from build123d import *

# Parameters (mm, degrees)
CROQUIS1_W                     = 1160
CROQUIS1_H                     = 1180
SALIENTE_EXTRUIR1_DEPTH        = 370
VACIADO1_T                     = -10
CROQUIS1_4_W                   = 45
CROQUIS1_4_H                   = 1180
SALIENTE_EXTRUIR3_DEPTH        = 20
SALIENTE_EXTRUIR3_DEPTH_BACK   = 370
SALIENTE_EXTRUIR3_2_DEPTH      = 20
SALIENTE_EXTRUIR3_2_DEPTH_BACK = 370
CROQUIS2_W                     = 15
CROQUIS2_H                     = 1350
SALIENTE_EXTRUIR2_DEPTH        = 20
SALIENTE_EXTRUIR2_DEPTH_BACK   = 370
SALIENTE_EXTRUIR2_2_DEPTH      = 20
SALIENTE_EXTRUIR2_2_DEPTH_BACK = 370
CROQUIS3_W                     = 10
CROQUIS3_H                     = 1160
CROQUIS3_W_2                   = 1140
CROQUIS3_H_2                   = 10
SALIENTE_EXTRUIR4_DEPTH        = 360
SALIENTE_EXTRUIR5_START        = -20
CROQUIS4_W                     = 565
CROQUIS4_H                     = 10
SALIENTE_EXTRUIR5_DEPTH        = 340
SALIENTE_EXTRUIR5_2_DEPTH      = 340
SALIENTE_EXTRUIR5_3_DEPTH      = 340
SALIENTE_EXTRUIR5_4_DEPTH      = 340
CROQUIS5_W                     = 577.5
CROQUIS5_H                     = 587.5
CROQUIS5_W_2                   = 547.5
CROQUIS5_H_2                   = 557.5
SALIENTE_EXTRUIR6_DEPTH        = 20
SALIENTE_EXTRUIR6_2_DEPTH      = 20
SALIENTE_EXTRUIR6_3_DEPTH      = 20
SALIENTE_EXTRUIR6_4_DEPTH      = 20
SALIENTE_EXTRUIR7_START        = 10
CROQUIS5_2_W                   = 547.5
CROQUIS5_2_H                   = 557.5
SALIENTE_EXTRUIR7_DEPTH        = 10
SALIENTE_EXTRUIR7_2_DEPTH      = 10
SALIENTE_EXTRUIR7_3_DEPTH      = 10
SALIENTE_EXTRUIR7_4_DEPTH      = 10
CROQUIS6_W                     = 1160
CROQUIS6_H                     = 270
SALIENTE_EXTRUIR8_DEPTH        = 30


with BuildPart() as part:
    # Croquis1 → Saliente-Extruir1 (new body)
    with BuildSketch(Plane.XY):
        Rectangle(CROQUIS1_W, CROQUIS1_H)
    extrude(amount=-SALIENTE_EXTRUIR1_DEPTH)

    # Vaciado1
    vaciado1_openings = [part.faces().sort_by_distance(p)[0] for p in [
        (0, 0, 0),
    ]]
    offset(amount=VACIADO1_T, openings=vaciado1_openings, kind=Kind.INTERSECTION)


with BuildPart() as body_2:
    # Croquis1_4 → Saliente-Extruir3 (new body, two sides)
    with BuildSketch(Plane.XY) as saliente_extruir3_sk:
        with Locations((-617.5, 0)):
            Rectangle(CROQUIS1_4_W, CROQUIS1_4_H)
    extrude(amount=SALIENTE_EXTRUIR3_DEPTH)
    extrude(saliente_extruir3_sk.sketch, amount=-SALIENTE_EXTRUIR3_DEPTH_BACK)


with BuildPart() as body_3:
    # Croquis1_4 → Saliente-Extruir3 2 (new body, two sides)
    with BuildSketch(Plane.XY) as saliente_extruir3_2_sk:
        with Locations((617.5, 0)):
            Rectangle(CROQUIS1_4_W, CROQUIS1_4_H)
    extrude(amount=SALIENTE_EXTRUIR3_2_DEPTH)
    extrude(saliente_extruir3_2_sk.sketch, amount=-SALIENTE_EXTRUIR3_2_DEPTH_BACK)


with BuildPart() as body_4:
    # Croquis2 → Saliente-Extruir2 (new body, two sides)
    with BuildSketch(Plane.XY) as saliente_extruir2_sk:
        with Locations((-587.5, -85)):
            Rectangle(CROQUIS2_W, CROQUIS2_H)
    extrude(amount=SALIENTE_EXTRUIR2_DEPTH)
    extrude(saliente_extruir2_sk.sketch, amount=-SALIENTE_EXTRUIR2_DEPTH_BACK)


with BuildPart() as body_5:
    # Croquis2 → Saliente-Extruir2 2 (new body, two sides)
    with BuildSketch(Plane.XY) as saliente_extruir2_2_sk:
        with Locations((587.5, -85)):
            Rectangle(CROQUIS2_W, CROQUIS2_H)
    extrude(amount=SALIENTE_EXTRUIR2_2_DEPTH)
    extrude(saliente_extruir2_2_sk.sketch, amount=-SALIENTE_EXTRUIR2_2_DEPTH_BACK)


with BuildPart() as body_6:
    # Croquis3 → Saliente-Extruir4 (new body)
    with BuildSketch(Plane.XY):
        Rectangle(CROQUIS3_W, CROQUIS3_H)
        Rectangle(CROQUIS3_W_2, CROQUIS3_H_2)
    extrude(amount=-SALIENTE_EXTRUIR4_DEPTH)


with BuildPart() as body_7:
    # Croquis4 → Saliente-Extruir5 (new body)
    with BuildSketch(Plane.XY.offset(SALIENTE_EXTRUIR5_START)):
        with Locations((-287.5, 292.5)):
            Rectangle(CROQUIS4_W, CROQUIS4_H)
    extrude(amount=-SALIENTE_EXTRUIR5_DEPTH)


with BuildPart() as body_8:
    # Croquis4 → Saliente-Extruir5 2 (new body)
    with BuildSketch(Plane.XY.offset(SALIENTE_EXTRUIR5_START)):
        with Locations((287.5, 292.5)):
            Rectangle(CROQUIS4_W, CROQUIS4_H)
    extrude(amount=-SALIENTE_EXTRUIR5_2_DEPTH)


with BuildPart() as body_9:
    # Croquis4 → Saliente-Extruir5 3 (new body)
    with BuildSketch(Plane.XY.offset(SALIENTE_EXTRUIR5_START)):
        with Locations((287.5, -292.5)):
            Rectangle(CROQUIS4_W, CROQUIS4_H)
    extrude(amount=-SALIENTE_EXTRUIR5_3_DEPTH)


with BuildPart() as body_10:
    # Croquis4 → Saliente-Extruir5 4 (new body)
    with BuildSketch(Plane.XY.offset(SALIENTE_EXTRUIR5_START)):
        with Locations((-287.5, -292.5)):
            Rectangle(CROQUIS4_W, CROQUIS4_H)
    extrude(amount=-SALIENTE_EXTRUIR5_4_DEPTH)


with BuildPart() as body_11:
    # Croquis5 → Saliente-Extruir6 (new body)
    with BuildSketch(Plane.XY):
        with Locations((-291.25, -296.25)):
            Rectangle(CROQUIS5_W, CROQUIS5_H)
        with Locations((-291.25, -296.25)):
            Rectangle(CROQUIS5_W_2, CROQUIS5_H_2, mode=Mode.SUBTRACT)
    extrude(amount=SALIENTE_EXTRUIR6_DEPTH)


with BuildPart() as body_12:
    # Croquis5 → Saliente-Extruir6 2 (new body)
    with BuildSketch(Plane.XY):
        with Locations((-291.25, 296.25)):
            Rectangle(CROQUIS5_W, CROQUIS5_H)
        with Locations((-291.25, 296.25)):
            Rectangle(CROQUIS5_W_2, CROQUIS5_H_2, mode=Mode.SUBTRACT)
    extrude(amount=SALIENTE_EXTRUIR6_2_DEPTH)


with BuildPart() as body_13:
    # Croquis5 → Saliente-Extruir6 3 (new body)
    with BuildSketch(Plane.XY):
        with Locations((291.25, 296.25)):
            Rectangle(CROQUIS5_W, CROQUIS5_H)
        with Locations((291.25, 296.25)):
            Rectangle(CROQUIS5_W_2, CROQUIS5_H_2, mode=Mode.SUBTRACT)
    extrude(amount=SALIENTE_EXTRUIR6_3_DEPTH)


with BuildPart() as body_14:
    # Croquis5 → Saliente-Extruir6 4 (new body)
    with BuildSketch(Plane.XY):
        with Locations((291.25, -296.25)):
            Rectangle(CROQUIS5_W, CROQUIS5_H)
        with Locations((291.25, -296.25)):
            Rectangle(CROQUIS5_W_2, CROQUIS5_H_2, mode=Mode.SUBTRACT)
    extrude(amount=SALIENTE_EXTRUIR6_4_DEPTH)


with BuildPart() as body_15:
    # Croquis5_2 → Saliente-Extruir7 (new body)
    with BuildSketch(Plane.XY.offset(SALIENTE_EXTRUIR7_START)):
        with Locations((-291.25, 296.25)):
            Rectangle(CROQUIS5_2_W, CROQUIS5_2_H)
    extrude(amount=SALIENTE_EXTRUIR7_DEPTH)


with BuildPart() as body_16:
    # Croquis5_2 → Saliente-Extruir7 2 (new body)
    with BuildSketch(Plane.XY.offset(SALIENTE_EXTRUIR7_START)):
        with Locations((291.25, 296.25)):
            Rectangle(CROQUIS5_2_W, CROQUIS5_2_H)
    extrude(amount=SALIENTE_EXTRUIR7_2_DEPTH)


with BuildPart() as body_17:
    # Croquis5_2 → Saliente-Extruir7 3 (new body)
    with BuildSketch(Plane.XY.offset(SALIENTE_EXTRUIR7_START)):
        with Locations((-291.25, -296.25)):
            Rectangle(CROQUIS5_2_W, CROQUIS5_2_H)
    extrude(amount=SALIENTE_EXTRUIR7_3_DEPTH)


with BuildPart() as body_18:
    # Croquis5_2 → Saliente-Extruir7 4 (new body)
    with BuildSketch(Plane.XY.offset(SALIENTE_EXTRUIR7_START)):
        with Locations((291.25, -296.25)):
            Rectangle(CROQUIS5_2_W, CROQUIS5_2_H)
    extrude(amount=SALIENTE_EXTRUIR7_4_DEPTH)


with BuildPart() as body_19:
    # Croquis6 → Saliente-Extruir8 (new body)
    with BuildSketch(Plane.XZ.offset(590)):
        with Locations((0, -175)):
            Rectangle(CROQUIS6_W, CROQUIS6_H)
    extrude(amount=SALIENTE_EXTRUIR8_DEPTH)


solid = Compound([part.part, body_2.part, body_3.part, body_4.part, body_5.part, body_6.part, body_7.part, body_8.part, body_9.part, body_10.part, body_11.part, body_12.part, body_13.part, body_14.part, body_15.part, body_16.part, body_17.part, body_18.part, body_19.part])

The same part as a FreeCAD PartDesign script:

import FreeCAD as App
import Part
import Sketcher

V = App.Vector


def faces_at(feature, points):
    """Names of the faces that lie closest to the given points."""
    faces = feature.Shape.Faces
    near = lambda p: min(range(len(faces)), key=lambda i: faces[i].distToShape(Part.Vertex(*p))[0])
    return sorted({f"Face{near(p) + 1}" for p in points})

doc = App.newDocument("Part")
body = doc.addObject("PartDesign::Body", "Body")

# Sketch on XY plane
sketch1 = doc.addObject("Sketcher::SketchObject", "Sketch")
body.addObject(sketch1)
sketch1.AttachmentSupport = (doc.XY_Plane, [""])
sketch1.MapMode = "FlatFace"
sketch1.addGeometry([
    Part.LineSegment(V(-580, 590, 0), V(-580, -590, 0)),
    Part.LineSegment(V(-580, -590, 0), V(580, -590, 0)),
    Part.LineSegment(V(580, -590, 0), V(580, 590, 0)),
    Part.LineSegment(V(580, 590, 0), V(-580, 590, 0)),
], False)
sketch1.addConstraint([
    Sketcher.Constraint("Coincident", 0, 2, 1, 1),
    Sketcher.Constraint("Coincident", 1, 2, 2, 1),
    Sketcher.Constraint("Coincident", 2, 2, 3, 1),
    Sketcher.Constraint("Coincident", 3, 2, 0, 1),
    Sketcher.Constraint("Vertical", 0),
    Sketcher.Constraint("Horizontal", 1),
    Sketcher.Constraint("Vertical", 2),
    Sketcher.Constraint("Horizontal", 3),
    Sketcher.Constraint("Symmetric", 0, 2, 2, 2, -1, 1),
    Sketcher.Constraint("DistanceX", 1, 1, 1, 2, 1160.0),
    Sketcher.Constraint("DistanceY", 0, 2, 0, 1, 1180.0),
])
pad1 = doc.addObject("PartDesign::Pad", "Pad")
body.addObject(pad1)
pad1.Profile = sketch1
pad1.Length = 370
pad1.Reversed = True
doc.recompute()

thickness = doc.addObject("PartDesign::Thickness", "Thickness")
body.addObject(thickness)
thickness.Base = (pad1, faces_at(pad1, [(0, 0, 0)]))
thickness.Value = 10
thickness.Reversed = True
thickness.Join = "Intersection"
body2 = doc.addObject("PartDesign::Body", "Body001")

# Sketch on XY plane
sketch2 = doc.addObject("Sketcher::SketchObject", "Sketch001")
body2.addObject(sketch2)
sketch2.AttachmentSupport = (doc.getObject("XY_Plane001"), [""])
sketch2.MapMode = "FlatFace"
sketch2.addGeometry([
    Part.LineSegment(V(-640, 590, 0), V(-640, -590, 0)),
    Part.LineSegment(V(-640, -590, 0), V(-595, -590, 0)),
    Part.LineSegment(V(-595, -590, 0), V(-595, 590, 0)),
    Part.LineSegment(V(-595, 590, 0), V(-640, 590, 0)),
], False)
sketch2.addConstraint([
    Sketcher.Constraint("Coincident", 0, 2, 1, 1),
    Sketcher.Constraint("Coincident", 1, 2, 2, 1),
    Sketcher.Constraint("Coincident", 2, 2, 3, 1),
    Sketcher.Constraint("Coincident", 3, 2, 0, 1),
    Sketcher.Constraint("Vertical", 0),
    Sketcher.Constraint("Horizontal", 1),
    Sketcher.Constraint("Vertical", 2),
    Sketcher.Constraint("Horizontal", 3),
    Sketcher.Constraint("DistanceX", 1, 1, 1, 2, 45.0),
    Sketcher.Constraint("DistanceY", 0, 2, 0, 1, 1180.0),
    Sketcher.Constraint("DistanceX", 0, 2, -1, 1, 640.0),
    Sketcher.Constraint("DistanceY", 0, 2, -1, 1, 590.0),
])
pad2 = doc.addObject("PartDesign::Pad", "Pad001")
body2.addObject(pad2)
pad2.Profile = sketch2
pad2.Type = "TwoLengths"
pad2.Length = 20
pad2.Length2 = 370
body3 = doc.addObject("PartDesign::Body", "Body002")

# Sketch on XY plane
sketch3 = doc.addObject("Sketcher::SketchObject", "Sketch002")
body3.addObject(sketch3)
sketch3.AttachmentSupport = (doc.getObject("XY_Plane002"), [""])
sketch3.MapMode = "FlatFace"
sketch3.addGeometry([
    Part.LineSegment(V(595, 590, 0), V(595, -590, 0)),
    Part.LineSegment(V(595, -590, 0), V(640, -590, 0)),
    Part.LineSegment(V(640, -590, 0), V(640, 590, 0)),
    Part.LineSegment(V(640, 590, 0), V(595, 590, 0)),
], False)
sketch3.addConstraint([
    Sketcher.Constraint("Coincident", 0, 2, 1, 1),
    Sketcher.Constraint("Coincident", 1, 2, 2, 1),
    Sketcher.Constraint("Coincident", 2, 2, 3, 1),
    Sketcher.Constraint("Coincident", 3, 2, 0, 1),
    Sketcher.Constraint("Vertical", 0),
    Sketcher.Constraint("Horizontal", 1),
    Sketcher.Constraint("Vertical", 2),
    Sketcher.Constraint("Horizontal", 3),
    Sketcher.Constraint("DistanceX", 1, 1, 1, 2, 45.0),
    Sketcher.Constraint("DistanceY", 0, 2, 0, 1, 1180.0),
    Sketcher.Constraint("DistanceX", -1, 1, 0, 2, 595.0),
    Sketcher.Constraint("DistanceY", 0, 2, -1, 1, 590.0),
])
pad3 = doc.addObject("PartDesign::Pad", "Pad002")
body3.addObject(pad3)
pad3.Profile = sketch3
pad3.Type = "TwoLengths"
pad3.Length = 20
pad3.Length2 = 370
body4 = doc.addObject("PartDesign::Body", "Body003")

# Sketch on XY plane
sketch4 = doc.addObject("Sketcher::SketchObject", "Sketch003")
body4.addObject(sketch4)
sketch4.AttachmentSupport = (doc.getObject("XY_Plane003"), [""])
sketch4.MapMode = "FlatFace"
sketch4.addGeometry([
    Part.LineSegment(V(-595, 590, 0), V(-595, -760, 0)),
    Part.LineSegment(V(-595, -760, 0), V(-580, -760, 0)),
    Part.LineSegment(V(-580, -760, 0), V(-580, 590, 0)),
    Part.LineSegment(V(-580, 590, 0), V(-595, 590, 0)),
], False)
sketch4.addConstraint([
    Sketcher.Constraint("Coincident", 0, 2, 1, 1),
    Sketcher.Constraint("Coincident", 1, 2, 2, 1),
    Sketcher.Constraint("Coincident", 2, 2, 3, 1),
    Sketcher.Constraint("Coincident", 3, 2, 0, 1),
    Sketcher.Constraint("Vertical", 0),
    Sketcher.Constraint("Horizontal", 1),
    Sketcher.Constraint("Vertical", 2),
    Sketcher.Constraint("Horizontal", 3),
    Sketcher.Constraint("DistanceX", 1, 1, 1, 2, 15.0),
    Sketcher.Constraint("DistanceY", 0, 2, 0, 1, 1350.0),
    Sketcher.Constraint("DistanceX", 0, 2, -1, 1, 595.0),
    Sketcher.Constraint("DistanceY", 0, 2, -1, 1, 760.0),
])
pad4 = doc.addObject("PartDesign::Pad", "Pad003")
body4.addObject(pad4)
pad4.Profile = sketch4
pad4.Type = "TwoLengths"
pad4.Length = 20
pad4.Length2 = 370
body5 = doc.addObject("PartDesign::Body", "Body004")

# Sketch on XY plane
sketch5 = doc.addObject("Sketcher::SketchObject", "Sketch004")
body5.addObject(sketch5)
sketch5.AttachmentSupport = (doc.getObject("XY_Plane004"), [""])
sketch5.MapMode = "FlatFace"
sketch5.addGeometry([
    Part.LineSegment(V(580, 590, 0), V(580, -760, 0)),
    Part.LineSegment(V(580, -760, 0), V(595, -760, 0)),
    Part.LineSegment(V(595, -760, 0), V(595, 590, 0)),
    Part.LineSegment(V(595, 590, 0), V(580, 590, 0)),
], False)
sketch5.addConstraint([
    Sketcher.Constraint("Coincident", 0, 2, 1, 1),
    Sketcher.Constraint("Coincident", 1, 2, 2, 1),
    Sketcher.Constraint("Coincident", 2, 2, 3, 1),
    Sketcher.Constraint("Coincident", 3, 2, 0, 1),
    Sketcher.Constraint("Vertical", 0),
    Sketcher.Constraint("Horizontal", 1),
    Sketcher.Constraint("Vertical", 2),
    Sketcher.Constraint("Horizontal", 3),
    Sketcher.Constraint("DistanceX", 1, 1, 1, 2, 15.0),
    Sketcher.Constraint("DistanceY", 0, 2, 0, 1, 1350.0),
    Sketcher.Constraint("DistanceX", -1, 1, 0, 2, 580.0),
    Sketcher.Constraint("DistanceY", 0, 2, -1, 1, 760.0),
])
pad5 = doc.addObject("PartDesign::Pad", "Pad004")
body5.addObject(pad5)
pad5.Profile = sketch5
pad5.Type = "TwoLengths"
pad5.Length = 20
pad5.Length2 = 370
body6 = doc.addObject("PartDesign::Body", "Body005")

# Sketch on XY plane
sketch6 = doc.addObject("Sketcher::SketchObject", "Sketch005")
body6.addObject(sketch6)
sketch6.AttachmentSupport = (doc.getObject("XY_Plane005"), [""])
sketch6.MapMode = "FlatFace"
sketch6.addGeometry([
    Part.LineSegment(V(-5, -5, 0), V(-5, -580, 0)),  # 0
    Part.LineSegment(V(-5, -580, 0), V(5, -580, 0)),  # 1
    Part.LineSegment(V(5, -580, 0), V(5, -5, 0)),  # 2
    Part.LineSegment(V(5, -5, 0), V(570, -5, 0)),  # 3
    Part.LineSegment(V(570, -5, 0), V(570, 5, 0)),  # 4
    Part.LineSegment(V(570, 5, 0), V(5, 5, 0)),  # 5
    Part.LineSegment(V(5, 5, 0), V(5, 580, 0)),  # 6
    Part.LineSegment(V(5, 580, 0), V(-5, 580, 0)),  # 7
    Part.LineSegment(V(-5, 580, 0), V(-5, 5, 0)),  # 8
    Part.LineSegment(V(-5, 5, 0), V(-570, 5, 0)),  # 9
    Part.LineSegment(V(-570, 5, 0), V(-570, -5, 0)),  # 10
    Part.LineSegment(V(-570, -5, 0), V(-5, -5, 0)),  # 11
], False)
sketch6.addConstraint([
    Sketcher.Constraint("Coincident", 0, 2, 1, 1),
    Sketcher.Constraint("Coincident", 1, 2, 2, 1),
    Sketcher.Constraint("Coincident", 2, 2, 3, 1),
    Sketcher.Constraint("Coincident", 3, 2, 4, 1),
    Sketcher.Constraint("Coincident", 4, 2, 5, 1),
    Sketcher.Constraint("Coincident", 5, 2, 6, 1),
    Sketcher.Constraint("Coincident", 6, 2, 7, 1),
    Sketcher.Constraint("Coincident", 7, 2, 8, 1),
    Sketcher.Constraint("Coincident", 8, 2, 9, 1),
    Sketcher.Constraint("Coincident", 9, 2, 10, 1),
    Sketcher.Constraint("Coincident", 10, 2, 11, 1),
    Sketcher.Constraint("Coincident", 11, 2, 0, 1),
    Sketcher.Constraint("Vertical", 0),
    Sketcher.Constraint("Horizontal", 1),
    Sketcher.Constraint("Vertical", 2),
    Sketcher.Constraint("Horizontal", 3),
    Sketcher.Constraint("Vertical", 4),
    Sketcher.Constraint("Horizontal", 5),
    Sketcher.Constraint("Vertical", 6),
    Sketcher.Constraint("Horizontal", 7),
    Sketcher.Constraint("Vertical", 8),
    Sketcher.Constraint("Horizontal", 9),
    Sketcher.Constraint("Vertical", 10),
    Sketcher.Constraint("Horizontal", 11),
    Sketcher.Constraint("Symmetric", 0, 2, 6, 2, -1, 1),
    Sketcher.Constraint("Symmetric", 2, 2, 8, 2, -1, 1),
    Sketcher.Constraint("Symmetric", 4, 2, 10, 2, -1, 1),
    Sketcher.Constraint("Symmetric", 5, 2, 8, 2, -2),
    Sketcher.Constraint("Equal", 7, 4),
    Sketcher.Constraint("DistanceX", 1, 1, 1, 2, 10.0),
    Sketcher.Constraint("DistanceX", 3, 1, 3, 2, 565.0),
    Sketcher.Constraint("DistanceY", 0, 2, 0, 1, 575.0),
])
pad6 = doc.addObject("PartDesign::Pad", "Pad005")
body6.addObject(pad6)
pad6.Profile = sketch6
pad6.Length = 360
pad6.Reversed = True
body7 = doc.addObject("PartDesign::Body", "Body006")

# Sketch on XY plane
sketch7 = doc.addObject("Sketcher::SketchObject", "Sketch006")
body7.addObject(sketch7)
sketch7.AttachmentSupport = (doc.getObject("XY_Plane006"), [""])
sketch7.MapMode = "FlatFace"
sketch7.AttachmentOffset = App.Placement(V(0, 0, -20), App.Rotation())
sketch7.addGeometry([
    Part.LineSegment(V(-570, 297.5, 0), V(-570, 287.5, 0)),
    Part.LineSegment(V(-570, 287.5, 0), V(-5, 287.5, 0)),
    Part.LineSegment(V(-5, 287.5, 0), V(-5, 297.5, 0)),
    Part.LineSegment(V(-5, 297.5, 0), V(-570, 297.5, 0)),
], False)
sketch7.addConstraint([
    Sketcher.Constraint("Coincident", 0, 2, 1, 1),
    Sketcher.Constraint("Coincident", 1, 2, 2, 1),
    Sketcher.Constraint("Coincident", 2, 2, 3, 1),
    Sketcher.Constraint("Coincident", 3, 2, 0, 1),
    Sketcher.Constraint("Vertical", 0),
    Sketcher.Constraint("Horizontal", 1),
    Sketcher.Constraint("Vertical", 2),
    Sketcher.Constraint("Horizontal", 3),
    Sketcher.Constraint("DistanceX", 1, 1, 1, 2, 565.0),
    Sketcher.Constraint("DistanceY", 0, 2, 0, 1, 10.0),
    Sketcher.Constraint("DistanceX", 0, 2, -1, 1, 570.0),
    Sketcher.Constraint("DistanceY", -1, 1, 0, 2, 287.5),
])
pad7 = doc.addObject("PartDesign::Pad", "Pad006")
body7.addObject(pad7)
pad7.Profile = sketch7
pad7.Length = 340
pad7.Reversed = True
body8 = doc.addObject("PartDesign::Body", "Body007")

# Sketch on XY plane
sketch8 = doc.addObject("Sketcher::SketchObject", "Sketch007")
body8.addObject(sketch8)
sketch8.AttachmentSupport = (doc.getObject("XY_Plane007"), [""])
sketch8.MapMode = "FlatFace"
sketch8.AttachmentOffset = App.Placement(V(0, 0, -20), App.Rotation())
sketch8.addGeometry([
    Part.LineSegment(V(5, 297.5, 0), V(5, 287.5, 0)),
    Part.LineSegment(V(5, 287.5, 0), V(570, 287.5, 0)),
    Part.LineSegment(V(570, 287.5, 0), V(570, 297.5, 0)),
    Part.LineSegment(V(570, 297.5, 0), V(5, 297.5, 0)),
], False)
sketch8.addConstraint([
    Sketcher.Constraint("Coincident", 0, 2, 1, 1),
    Sketcher.Constraint("Coincident", 1, 2, 2, 1),
    Sketcher.Constraint("Coincident", 2, 2, 3, 1),
    Sketcher.Constraint("Coincident", 3, 2, 0, 1),
    Sketcher.Constraint("Vertical", 0),
    Sketcher.Constraint("Horizontal", 1),
    Sketcher.Constraint("Vertical", 2),
    Sketcher.Constraint("Horizontal", 3),
    Sketcher.Constraint("DistanceX", 1, 1, 1, 2, 565.0),
    Sketcher.Constraint("DistanceY", 0, 2, 0, 1, 10.0),
    Sketcher.Constraint("DistanceX", -1, 1, 0, 2, 5.0),
    Sketcher.Constraint("DistanceY", -1, 1, 0, 2, 287.5),
])
pad8 = doc.addObject("PartDesign::Pad", "Pad007")
body8.addObject(pad8)
pad8.Profile = sketch8
pad8.Length = 340
pad8.Reversed = True
body9 = doc.addObject("PartDesign::Body", "Body008")

# Sketch on XY plane
sketch9 = doc.addObject("Sketcher::SketchObject", "Sketch008")
body9.addObject(sketch9)
sketch9.AttachmentSupport = (doc.getObject("XY_Plane008"), [""])
sketch9.MapMode = "FlatFace"
sketch9.AttachmentOffset = App.Placement(V(0, 0, -20), App.Rotation())
sketch9.addGeometry([
    Part.LineSegment(V(5, -287.5, 0), V(5, -297.5, 0)),
    Part.LineSegment(V(5, -297.5, 0), V(570, -297.5, 0)),
    Part.LineSegment(V(570, -297.5, 0), V(570, -287.5, 0)),
    Part.LineSegment(V(570, -287.5, 0), V(5, -287.5, 0)),
], False)
sketch9.addConstraint([
    Sketcher.Constraint("Coincident", 0, 2, 1, 1),
    Sketcher.Constraint("Coincident", 1, 2, 2, 1),
    Sketcher.Constraint("Coincident", 2, 2, 3, 1),
    Sketcher.Constraint("Coincident", 3, 2, 0, 1),
    Sketcher.Constraint("Vertical", 0),
    Sketcher.Constraint("Horizontal", 1),
    Sketcher.Constraint("Vertical", 2),
    Sketcher.Constraint("Horizontal", 3),
    Sketcher.Constraint("DistanceX", 1, 1, 1, 2, 565.0),
    Sketcher.Constraint("DistanceY", 0, 2, 0, 1, 10.0),
    Sketcher.Constraint("DistanceX", -1, 1, 0, 2, 5.0),
    Sketcher.Constraint("DistanceY", 0, 2, -1, 1, 297.5),
])
pad9 = doc.addObject("PartDesign::Pad", "Pad008")
body9.addObject(pad9)
pad9.Profile = sketch9
pad9.Length = 340
pad9.Reversed = True
body10 = doc.addObject("PartDesign::Body", "Body009")

# Sketch on XY plane
sketch10 = doc.addObject("Sketcher::SketchObject", "Sketch009")
body10.addObject(sketch10)
sketch10.AttachmentSupport = (doc.getObject("XY_Plane009"), [""])
sketch10.MapMode = "FlatFace"
sketch10.AttachmentOffset = App.Placement(V(0, 0, -20), App.Rotation())
sketch10.addGeometry([
    Part.LineSegment(V(-570, -287.5, 0), V(-570, -297.5, 0)),
    Part.LineSegment(V(-570, -297.5, 0), V(-5, -297.5, 0)),
    Part.LineSegment(V(-5, -297.5, 0), V(-5, -287.5, 0)),
    Part.LineSegment(V(-5, -287.5, 0), V(-570, -287.5, 0)),
], False)
sketch10.addConstraint([
    Sketcher.Constraint("Coincident", 0, 2, 1, 1),
    Sketcher.Constraint("Coincident", 1, 2, 2, 1),
    Sketcher.Constraint("Coincident", 2, 2, 3, 1),
    Sketcher.Constraint("Coincident", 3, 2, 0, 1),
    Sketcher.Constraint("Vertical", 0),
    Sketcher.Constraint("Horizontal", 1),
    Sketcher.Constraint("Vertical", 2),
    Sketcher.Constraint("Horizontal", 3),
    Sketcher.Constraint("DistanceX", 1, 1, 1, 2, 565.0),
    Sketcher.Constraint("DistanceY", 0, 2, 0, 1, 10.0),
    Sketcher.Constraint("DistanceX", 0, 2, -1, 1, 570.0),
    Sketcher.Constraint("DistanceY", 0, 2, -1, 1, 297.5),
])
pad10 = doc.addObject("PartDesign::Pad", "Pad009")
body10.addObject(pad10)
pad10.Profile = sketch10
pad10.Length = 340
pad10.Reversed = True
body11 = doc.addObject("PartDesign::Body", "Body010")

# Sketch on XY plane
sketch11 = doc.addObject("Sketcher::SketchObject", "Sketch010")
body11.addObject(sketch11)
sketch11.AttachmentSupport = (doc.getObject("XY_Plane010"), [""])
sketch11.MapMode = "FlatFace"
sketch11.addGeometry([
    Part.LineSegment(V(-580, -2.5, 0), V(-580, -590, 0)),  # 0
    Part.LineSegment(V(-580, -590, 0), V(-2.5, -590, 0)),  # 1
    Part.LineSegment(V(-2.5, -590, 0), V(-2.5, -2.5, 0)),  # 2
    Part.LineSegment(V(-2.5, -2.5, 0), V(-580, -2.5, 0)),  # 3
    Part.LineSegment(V(-17.5, -575, 0), V(-565, -575, 0)),  # 4
    Part.LineSegment(V(-565, -575, 0), V(-565, -17.5, 0)),  # 5
    Part.LineSegment(V(-565, -17.5, 0), V(-17.5, -17.5, 0)),  # 6
    Part.LineSegment(V(-17.5, -17.5, 0), V(-17.5, -575, 0)),  # 7
], False)
sketch11.addConstraint([
    Sketcher.Constraint("Coincident", 0, 2, 1, 1),
    Sketcher.Constraint("Coincident", 1, 2, 2, 1),
    Sketcher.Constraint("Coincident", 2, 2, 3, 1),
    Sketcher.Constraint("Coincident", 3, 2, 0, 1),
    Sketcher.Constraint("Coincident", 4, 2, 5, 1),
    Sketcher.Constraint("Coincident", 5, 2, 6, 1),
    Sketcher.Constraint("Coincident", 6, 2, 7, 1),
    Sketcher.Constraint("Coincident", 7, 2, 4, 1),
    Sketcher.Constraint("Vertical", 0),
    Sketcher.Constraint("Horizontal", 1),
    Sketcher.Constraint("Vertical", 2),
    Sketcher.Constraint("Horizontal", 3),
    Sketcher.Constraint("Horizontal", 4),
    Sketcher.Constraint("Vertical", 5),
    Sketcher.Constraint("Horizontal", 6),
    Sketcher.Constraint("Vertical", 7),
    Sketcher.Constraint("DistanceX", 1, 1, 1, 2, 577.5),
    Sketcher.Constraint("DistanceX", 4, 2, 4, 1, 547.5),
    Sketcher.Constraint("DistanceY", 0, 2, 0, 1, 587.5),
    Sketcher.Constraint("DistanceY", 5, 1, 5, 2, 557.5),
    Sketcher.Constraint("DistanceX", 0, 2, -1, 1, 580.0),
    Sketcher.Constraint("DistanceY", 0, 2, -1, 1, 590.0),
    Sketcher.Constraint("DistanceX", 4, 2, -1, 1, 565.0),
    Sketcher.Constraint("DistanceY", 4, 2, -1, 1, 575.0),
])
pad11 = doc.addObject("PartDesign::Pad", "Pad010")
body11.addObject(pad11)
pad11.Profile = sketch11
pad11.Length = 20
body12 = doc.addObject("PartDesign::Body", "Body011")

# Sketch on XY plane
sketch12 = doc.addObject("Sketcher::SketchObject", "Sketch011")
body12.addObject(sketch12)
sketch12.AttachmentSupport = (doc.getObject("XY_Plane011"), [""])
sketch12.MapMode = "FlatFace"
sketch12.addGeometry([
    Part.LineSegment(V(-580, 590, 0), V(-580, 2.5, 0)),  # 0
    Part.LineSegment(V(-580, 2.5, 0), V(-2.5, 2.5, 0)),  # 1
    Part.LineSegment(V(-2.5, 2.5, 0), V(-2.5, 590, 0)),  # 2
    Part.LineSegment(V(-2.5, 590, 0), V(-580, 590, 0)),  # 3
    Part.LineSegment(V(-17.5, 17.5, 0), V(-565, 17.5, 0)),  # 4
    Part.LineSegment(V(-565, 17.5, 0), V(-565, 575, 0)),  # 5
    Part.LineSegment(V(-565, 575, 0), V(-17.5, 575, 0)),  # 6
    Part.LineSegment(V(-17.5, 575, 0), V(-17.5, 17.5, 0)),  # 7
], False)
sketch12.addConstraint([
    Sketcher.Constraint("Coincident", 0, 2, 1, 1),
    Sketcher.Constraint("Coincident", 1, 2, 2, 1),
    Sketcher.Constraint("Coincident", 2, 2, 3, 1),
    Sketcher.Constraint("Coincident", 3, 2, 0, 1),
    Sketcher.Constraint("Coincident", 4, 2, 5, 1),
    Sketcher.Constraint("Coincident", 5, 2, 6, 1),
    Sketcher.Constraint("Coincident", 6, 2, 7, 1),
    Sketcher.Constraint("Coincident", 7, 2, 4, 1),
    Sketcher.Constraint("Vertical", 0),
    Sketcher.Constraint("Horizontal", 1),
    Sketcher.Constraint("Vertical", 2),
    Sketcher.Constraint("Horizontal", 3),
    Sketcher.Constraint("Horizontal", 4),
    Sketcher.Constraint("Vertical", 5),
    Sketcher.Constraint("Horizontal", 6),
    Sketcher.Constraint("Vertical", 7),
    Sketcher.Constraint("DistanceX", 1, 1, 1, 2, 577.5),
    Sketcher.Constraint("DistanceX", 4, 2, 4, 1, 547.5),
    Sketcher.Constraint("DistanceY", 0, 2, 0, 1, 587.5),
    Sketcher.Constraint("DistanceY", 5, 1, 5, 2, 557.5),
    Sketcher.Constraint("DistanceX", 0, 2, -1, 1, 580.0),
    Sketcher.Constraint("DistanceY", -1, 1, 2, 2, 590.0),
    Sketcher.Constraint("DistanceX", 4, 2, -1, 1, 565.0),
    Sketcher.Constraint("DistanceY", -1, 1, 5, 2, 575.0),
])
pad12 = doc.addObject("PartDesign::Pad", "Pad011")
body12.addObject(pad12)
pad12.Profile = sketch12
pad12.Length = 20
body13 = doc.addObject("PartDesign::Body", "Body012")

# Sketch on XY plane
sketch13 = doc.addObject("Sketcher::SketchObject", "Sketch012")
body13.addObject(sketch13)
sketch13.AttachmentSupport = (doc.getObject("XY_Plane012"), [""])
sketch13.MapMode = "FlatFace"
sketch13.addGeometry([
    Part.LineSegment(V(2.5, 590, 0), V(2.5, 2.5, 0)),  # 0
    Part.LineSegment(V(2.5, 2.5, 0), V(580, 2.5, 0)),  # 1
    Part.LineSegment(V(580, 2.5, 0), V(580, 590, 0)),  # 2
    Part.LineSegment(V(580, 590, 0), V(2.5, 590, 0)),  # 3
    Part.LineSegment(V(565, 17.5, 0), V(17.5, 17.5, 0)),  # 4
    Part.LineSegment(V(17.5, 17.5, 0), V(17.5, 575, 0)),  # 5
    Part.LineSegment(V(17.5, 575, 0), V(565, 575, 0)),  # 6
    Part.LineSegment(V(565, 575, 0), V(565, 17.5, 0)),  # 7
], False)
sketch13.addConstraint([
    Sketcher.Constraint("Coincident", 0, 2, 1, 1),
    Sketcher.Constraint("Coincident", 1, 2, 2, 1),
    Sketcher.Constraint("Coincident", 2, 2, 3, 1),
    Sketcher.Constraint("Coincident", 3, 2, 0, 1),
    Sketcher.Constraint("Coincident", 4, 2, 5, 1),
    Sketcher.Constraint("Coincident", 5, 2, 6, 1),
    Sketcher.Constraint("Coincident", 6, 2, 7, 1),
    Sketcher.Constraint("Coincident", 7, 2, 4, 1),
    Sketcher.Constraint("Vertical", 0),
    Sketcher.Constraint("Horizontal", 1),
    Sketcher.Constraint("Vertical", 2),
    Sketcher.Constraint("Horizontal", 3),
    Sketcher.Constraint("Horizontal", 4),
    Sketcher.Constraint("Vertical", 5),
    Sketcher.Constraint("Horizontal", 6),
    Sketcher.Constraint("Vertical", 7),
    Sketcher.Constraint("DistanceX", 1, 1, 1, 2, 577.5),
    Sketcher.Constraint("DistanceX", 4, 2, 4, 1, 547.5),
    Sketcher.Constraint("DistanceY", 0, 2, 0, 1, 587.5),
    Sketcher.Constraint("DistanceY", 5, 1, 5, 2, 557.5),
    Sketcher.Constraint("DistanceX", -1, 1, 1, 2, 580.0),
    Sketcher.Constraint("DistanceY", -1, 1, 2, 2, 590.0),
    Sketcher.Constraint("DistanceY", -1, 1, 5, 2, 575.0),
    Sketcher.Constraint("DistanceX", -1, 1, 6, 2, 565.0),
])
pad13 = doc.addObject("PartDesign::Pad", "Pad012")
body13.addObject(pad13)
pad13.Profile = sketch13
pad13.Length = 20
body14 = doc.addObject("PartDesign::Body", "Body013")

# Sketch on XY plane
sketch14 = doc.addObject("Sketcher::SketchObject", "Sketch013")
body14.addObject(sketch14)
sketch14.AttachmentSupport = (doc.getObject("XY_Plane013"), [""])
sketch14.MapMode = "FlatFace"
sketch14.addGeometry([
    Part.LineSegment(V(2.5, -2.5, 0), V(2.5, -590, 0)),  # 0
    Part.LineSegment(V(2.5, -590, 0), V(580, -590, 0)),  # 1
    Part.LineSegment(V(580, -590, 0), V(580, -2.5, 0)),  # 2
    Part.LineSegment(V(580, -2.5, 0), V(2.5, -2.5, 0)),  # 3
    Part.LineSegment(V(565, -575, 0), V(17.5, -575, 0)),  # 4
    Part.LineSegment(V(17.5, -575, 0), V(17.5, -17.5, 0)),  # 5
    Part.LineSegment(V(17.5, -17.5, 0), V(565, -17.5, 0)),  # 6
    Part.LineSegment(V(565, -17.5, 0), V(565, -575, 0)),  # 7
], False)
sketch14.addConstraint([
    Sketcher.Constraint("Coincident", 0, 2, 1, 1),
    Sketcher.Constraint("Coincident", 1, 2, 2, 1),
    Sketcher.Constraint("Coincident", 2, 2, 3, 1),
    Sketcher.Constraint("Coincident", 3, 2, 0, 1),
    Sketcher.Constraint("Coincident", 4, 2, 5, 1),
    Sketcher.Constraint("Coincident", 5, 2, 6, 1),
    Sketcher.Constraint("Coincident", 6, 2, 7, 1),
    Sketcher.Constraint("Coincident", 7, 2, 4, 1),
    Sketcher.Constraint("Vertical", 0),
    Sketcher.Constraint("Horizontal", 1),
    Sketcher.Constraint("Vertical", 2),
    Sketcher.Constraint("Horizontal", 3),
    Sketcher.Constraint("Horizontal", 4),
    Sketcher.Constraint("Vertical", 5),
    Sketcher.Constraint("Horizontal", 6),
    Sketcher.Constraint("Vertical", 7),
    Sketcher.Constraint("DistanceX", 1, 1, 1, 2, 577.5),
    Sketcher.Constraint("DistanceX", 4, 2, 4, 1, 547.5),
    Sketcher.Constraint("DistanceY", 0, 2, 0, 1, 587.5),
    Sketcher.Constraint("DistanceY", 5, 1, 5, 2, 557.5),
    Sketcher.Constraint("DistanceY", 0, 2, -1, 1, 590.0),
    Sketcher.Constraint("DistanceX", -1, 1, 1, 2, 580.0),
    Sketcher.Constraint("DistanceY", 4, 2, -1, 1, 575.0),
    Sketcher.Constraint("DistanceX", -1, 1, 6, 2, 565.0),
])
pad14 = doc.addObject("PartDesign::Pad", "Pad013")
body14.addObject(pad14)
pad14.Profile = sketch14
pad14.Length = 20
body15 = doc.addObject("PartDesign::Body", "Body014")

# Sketch on XY plane
sketch15 = doc.addObject("Sketcher::SketchObject", "Sketch014")
body15.addObject(sketch15)
sketch15.AttachmentSupport = (doc.getObject("XY_Plane014"), [""])
sketch15.MapMode = "FlatFace"
sketch15.AttachmentOffset = App.Placement(V(0, 0, 10), App.Rotation())
sketch15.addGeometry([
    Part.LineSegment(V(-565, 575, 0), V(-565, 17.5, 0)),
    Part.LineSegment(V(-565, 17.5, 0), V(-17.5, 17.5, 0)),
    Part.LineSegment(V(-17.5, 17.5, 0), V(-17.5, 575, 0)),
    Part.LineSegment(V(-17.5, 575, 0), V(-565, 575, 0)),
], False)
sketch15.addConstraint([
    Sketcher.Constraint("Coincident", 0, 2, 1, 1),
    Sketcher.Constraint("Coincident", 1, 2, 2, 1),
    Sketcher.Constraint("Coincident", 2, 2, 3, 1),
    Sketcher.Constraint("Coincident", 3, 2, 0, 1),
    Sketcher.Constraint("Vertical", 0),
    Sketcher.Constraint("Horizontal", 1),
    Sketcher.Constraint("Vertical", 2),
    Sketcher.Constraint("Horizontal", 3),
    Sketcher.Constraint("DistanceX", 1, 1, 1, 2, 547.5),
    Sketcher.Constraint("DistanceY", 0, 2, 0, 1, 557.5),
    Sketcher.Constraint("DistanceX", 0, 2, -1, 1, 565.0),
    Sketcher.Constraint("DistanceY", -1, 1, 2, 2, 575.0),
])
pad15 = doc.addObject("PartDesign::Pad", "Pad014")
body15.addObject(pad15)
pad15.Profile = sketch15
pad15.Length = 10
body16 = doc.addObject("PartDesign::Body", "Body015")

# Sketch on XY plane
sketch16 = doc.addObject("Sketcher::SketchObject", "Sketch015")
body16.addObject(sketch16)
sketch16.AttachmentSupport = (doc.getObject("XY_Plane015"), [""])
sketch16.MapMode = "FlatFace"
sketch16.AttachmentOffset = App.Placement(V(0, 0, 10), App.Rotation())
sketch16.addGeometry([
    Part.LineSegment(V(17.5, 575, 0), V(17.5, 17.5, 0)),
    Part.LineSegment(V(17.5, 17.5, 0), V(565, 17.5, 0)),
    Part.LineSegment(V(565, 17.5, 0), V(565, 575, 0)),
    Part.LineSegment(V(565, 575, 0), V(17.5, 575, 0)),
], False)
sketch16.addConstraint([
    Sketcher.Constraint("Coincident", 0, 2, 1, 1),
    Sketcher.Constraint("Coincident", 1, 2, 2, 1),
    Sketcher.Constraint("Coincident", 2, 2, 3, 1),
    Sketcher.Constraint("Coincident", 3, 2, 0, 1),
    Sketcher.Constraint("Vertical", 0),
    Sketcher.Constraint("Horizontal", 1),
    Sketcher.Constraint("Vertical", 2),
    Sketcher.Constraint("Horizontal", 3),
    Sketcher.Constraint("DistanceX", 1, 1, 1, 2, 547.5),
    Sketcher.Constraint("DistanceY", 0, 2, 0, 1, 557.5),
    Sketcher.Constraint("DistanceX", -1, 1, 1, 2, 565.0),
    Sketcher.Constraint("DistanceY", -1, 1, 2, 2, 575.0),
])
pad16 = doc.addObject("PartDesign::Pad", "Pad015")
body16.addObject(pad16)
pad16.Profile = sketch16
pad16.Length = 10
body17 = doc.addObject("PartDesign::Body", "Body016")

# Sketch on XY plane
sketch17 = doc.addObject("Sketcher::SketchObject", "Sketch016")
body17.addObject(sketch17)
sketch17.AttachmentSupport = (doc.getObject("XY_Plane016"), [""])
sketch17.MapMode = "FlatFace"
sketch17.AttachmentOffset = App.Placement(V(0, 0, 10), App.Rotation())
sketch17.addGeometry([
    Part.LineSegment(V(-565, -17.5, 0), V(-565, -575, 0)),
    Part.LineSegment(V(-565, -575, 0), V(-17.5, -575, 0)),
    Part.LineSegment(V(-17.5, -575, 0), V(-17.5, -17.5, 0)),
    Part.LineSegment(V(-17.5, -17.5, 0), V(-565, -17.5, 0)),
], False)
sketch17.addConstraint([
    Sketcher.Constraint("Coincident", 0, 2, 1, 1),
    Sketcher.Constraint("Coincident", 1, 2, 2, 1),
    Sketcher.Constraint("Coincident", 2, 2, 3, 1),
    Sketcher.Constraint("Coincident", 3, 2, 0, 1),
    Sketcher.Constraint("Vertical", 0),
    Sketcher.Constraint("Horizontal", 1),
    Sketcher.Constraint("Vertical", 2),
    Sketcher.Constraint("Horizontal", 3),
    Sketcher.Constraint("DistanceX", 1, 1, 1, 2, 547.5),
    Sketcher.Constraint("DistanceY", 0, 2, 0, 1, 557.5),
    Sketcher.Constraint("DistanceX", 0, 2, -1, 1, 565.0),
    Sketcher.Constraint("DistanceY", 0, 2, -1, 1, 575.0),
])
pad17 = doc.addObject("PartDesign::Pad", "Pad016")
body17.addObject(pad17)
pad17.Profile = sketch17
pad17.Length = 10
body18 = doc.addObject("PartDesign::Body", "Body017")

# Sketch on XY plane
sketch18 = doc.addObject("Sketcher::SketchObject", "Sketch017")
body18.addObject(sketch18)
sketch18.AttachmentSupport = (doc.getObject("XY_Plane017"), [""])
sketch18.MapMode = "FlatFace"
sketch18.AttachmentOffset = App.Placement(V(0, 0, 10), App.Rotation())
sketch18.addGeometry([
    Part.LineSegment(V(17.5, -17.5, 0), V(17.5, -575, 0)),
    Part.LineSegment(V(17.5, -575, 0), V(565, -575, 0)),
    Part.LineSegment(V(565, -575, 0), V(565, -17.5, 0)),
    Part.LineSegment(V(565, -17.5, 0), V(17.5, -17.5, 0)),
], False)
sketch18.addConstraint([
    Sketcher.Constraint("Coincident", 0, 2, 1, 1),
    Sketcher.Constraint("Coincident", 1, 2, 2, 1),
    Sketcher.Constraint("Coincident", 2, 2, 3, 1),
    Sketcher.Constraint("Coincident", 3, 2, 0, 1),
    Sketcher.Constraint("Vertical", 0),
    Sketcher.Constraint("Horizontal", 1),
    Sketcher.Constraint("Vertical", 2),
    Sketcher.Constraint("Horizontal", 3),
    Sketcher.Constraint("DistanceX", 1, 1, 1, 2, 547.5),
    Sketcher.Constraint("DistanceY", 0, 2, 0, 1, 557.5),
    Sketcher.Constraint("DistanceY", 0, 2, -1, 1, 575.0),
    Sketcher.Constraint("DistanceX", -1, 1, 1, 2, 565.0),
])
pad18 = doc.addObject("PartDesign::Pad", "Pad017")
body18.addObject(pad18)
pad18.Profile = sketch18
pad18.Length = 10
body19 = doc.addObject("PartDesign::Body", "Body018")

# Sketch on XZ plane
sketch19 = doc.addObject("Sketcher::SketchObject", "Sketch018")
body19.addObject(sketch19)
sketch19.AttachmentSupport = (doc.getObject("XZ_Plane018"), [""])
sketch19.MapMode = "FlatFace"
sketch19.AttachmentOffset = App.Placement(V(0, 0, 590), App.Rotation())
sketch19.addGeometry([
    Part.LineSegment(V(-580, -40, 0), V(-580, -310, 0)),
    Part.LineSegment(V(-580, -310, 0), V(580, -310, 0)),
    Part.LineSegment(V(580, -310, 0), V(580, -40, 0)),
    Part.LineSegment(V(580, -40, 0), V(-580, -40, 0)),
], False)
sketch19.addConstraint([
    Sketcher.Constraint("Coincident", 0, 2, 1, 1),
    Sketcher.Constraint("Coincident", 1, 2, 2, 1),
    Sketcher.Constraint("Coincident", 2, 2, 3, 1),
    Sketcher.Constraint("Coincident", 3, 2, 0, 1),
    Sketcher.Constraint("Vertical", 0),
    Sketcher.Constraint("Horizontal", 1),
    Sketcher.Constraint("Vertical", 2),
    Sketcher.Constraint("Horizontal", 3),
    Sketcher.Constraint("DistanceX", 1, 1, 1, 2, 1160.0),
    Sketcher.Constraint("DistanceY", 0, 2, 0, 1, 270.0),
    Sketcher.Constraint("DistanceX", 0, 2, -1, 1, 580.0),
    Sketcher.Constraint("DistanceY", 0, 2, -1, 1, 310.0),
])
pad19 = doc.addObject("PartDesign::Pad", "Pad018")
body19.addObject(pad19)
pad19.Profile = sketch19
pad19.Length = 30

doc.recompute()
